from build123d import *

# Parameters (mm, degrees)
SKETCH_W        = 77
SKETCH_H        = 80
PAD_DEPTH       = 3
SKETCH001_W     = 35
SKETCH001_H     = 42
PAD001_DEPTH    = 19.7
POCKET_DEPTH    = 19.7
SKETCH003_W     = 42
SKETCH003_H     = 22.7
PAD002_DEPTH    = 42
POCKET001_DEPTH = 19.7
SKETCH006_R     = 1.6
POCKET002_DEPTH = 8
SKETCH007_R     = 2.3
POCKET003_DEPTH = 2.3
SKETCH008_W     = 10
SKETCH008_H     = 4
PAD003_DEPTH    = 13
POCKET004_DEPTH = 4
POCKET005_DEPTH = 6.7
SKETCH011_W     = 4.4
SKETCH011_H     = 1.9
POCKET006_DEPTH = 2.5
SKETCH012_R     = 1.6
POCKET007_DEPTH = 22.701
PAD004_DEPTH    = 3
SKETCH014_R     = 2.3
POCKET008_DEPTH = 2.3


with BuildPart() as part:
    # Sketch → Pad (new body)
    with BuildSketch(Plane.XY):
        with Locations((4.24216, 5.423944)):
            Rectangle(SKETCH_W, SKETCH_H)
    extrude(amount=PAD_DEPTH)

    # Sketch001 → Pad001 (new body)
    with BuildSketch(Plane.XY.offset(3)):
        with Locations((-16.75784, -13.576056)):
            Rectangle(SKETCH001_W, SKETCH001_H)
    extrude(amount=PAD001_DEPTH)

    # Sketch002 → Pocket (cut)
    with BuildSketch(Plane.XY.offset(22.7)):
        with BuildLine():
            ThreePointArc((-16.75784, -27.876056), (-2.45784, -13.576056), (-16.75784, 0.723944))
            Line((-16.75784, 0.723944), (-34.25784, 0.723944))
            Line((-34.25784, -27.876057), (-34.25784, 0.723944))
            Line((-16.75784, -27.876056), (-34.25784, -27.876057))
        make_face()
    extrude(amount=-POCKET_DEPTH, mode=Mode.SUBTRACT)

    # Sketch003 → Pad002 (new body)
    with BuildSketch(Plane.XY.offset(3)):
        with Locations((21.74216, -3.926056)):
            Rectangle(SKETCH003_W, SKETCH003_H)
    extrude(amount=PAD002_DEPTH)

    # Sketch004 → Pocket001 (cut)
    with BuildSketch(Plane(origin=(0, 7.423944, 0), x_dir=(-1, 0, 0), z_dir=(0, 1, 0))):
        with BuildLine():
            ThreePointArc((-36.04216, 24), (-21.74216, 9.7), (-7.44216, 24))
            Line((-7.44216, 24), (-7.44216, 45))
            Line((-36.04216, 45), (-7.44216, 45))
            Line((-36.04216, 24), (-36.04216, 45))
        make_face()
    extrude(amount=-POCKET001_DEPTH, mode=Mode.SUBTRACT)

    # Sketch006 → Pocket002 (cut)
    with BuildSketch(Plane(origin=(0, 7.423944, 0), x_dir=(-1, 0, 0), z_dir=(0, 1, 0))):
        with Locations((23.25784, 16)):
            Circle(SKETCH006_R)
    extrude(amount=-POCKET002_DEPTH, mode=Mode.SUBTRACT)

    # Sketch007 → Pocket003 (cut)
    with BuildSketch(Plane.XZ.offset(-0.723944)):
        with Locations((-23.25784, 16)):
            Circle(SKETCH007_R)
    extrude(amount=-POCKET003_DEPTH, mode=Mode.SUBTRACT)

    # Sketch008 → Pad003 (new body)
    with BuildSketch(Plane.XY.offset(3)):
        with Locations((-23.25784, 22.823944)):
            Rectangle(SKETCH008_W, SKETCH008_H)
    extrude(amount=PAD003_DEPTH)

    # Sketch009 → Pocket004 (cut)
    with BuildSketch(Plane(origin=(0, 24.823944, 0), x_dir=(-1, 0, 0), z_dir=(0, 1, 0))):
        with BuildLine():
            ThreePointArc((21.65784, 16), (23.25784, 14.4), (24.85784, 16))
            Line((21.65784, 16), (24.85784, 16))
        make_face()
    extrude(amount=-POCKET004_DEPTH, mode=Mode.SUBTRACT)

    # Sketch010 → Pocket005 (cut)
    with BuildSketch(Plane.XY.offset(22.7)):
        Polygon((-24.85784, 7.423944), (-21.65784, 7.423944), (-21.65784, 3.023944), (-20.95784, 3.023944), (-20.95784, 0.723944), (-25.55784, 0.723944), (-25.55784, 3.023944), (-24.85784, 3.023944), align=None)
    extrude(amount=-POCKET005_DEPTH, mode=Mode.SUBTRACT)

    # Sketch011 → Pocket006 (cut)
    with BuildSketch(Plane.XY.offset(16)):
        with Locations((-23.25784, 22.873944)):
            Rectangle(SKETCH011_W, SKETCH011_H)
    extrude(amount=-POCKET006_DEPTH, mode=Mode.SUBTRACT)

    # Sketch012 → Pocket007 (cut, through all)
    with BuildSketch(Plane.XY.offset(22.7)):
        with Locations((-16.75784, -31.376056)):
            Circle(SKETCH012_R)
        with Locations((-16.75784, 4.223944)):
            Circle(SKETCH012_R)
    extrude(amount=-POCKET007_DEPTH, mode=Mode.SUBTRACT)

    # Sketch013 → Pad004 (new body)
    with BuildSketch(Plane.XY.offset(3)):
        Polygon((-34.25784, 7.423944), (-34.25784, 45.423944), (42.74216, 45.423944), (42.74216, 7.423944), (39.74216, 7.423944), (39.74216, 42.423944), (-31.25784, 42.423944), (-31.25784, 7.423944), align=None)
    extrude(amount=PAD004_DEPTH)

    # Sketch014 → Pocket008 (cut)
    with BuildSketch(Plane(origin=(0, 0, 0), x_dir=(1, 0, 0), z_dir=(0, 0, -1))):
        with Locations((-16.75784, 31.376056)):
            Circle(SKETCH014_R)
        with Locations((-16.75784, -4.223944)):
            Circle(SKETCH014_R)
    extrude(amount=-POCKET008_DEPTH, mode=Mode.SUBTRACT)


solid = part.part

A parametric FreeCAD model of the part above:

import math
import FreeCAD as App
import Part
import Sketcher

doc = App.newDocument("Part")
body = doc.addObject("PartDesign::Body", "Body")

sketch1 = body.newObject("Sketcher::SketchObject", "Sketch")
sketch1.AttachmentSupport = (doc.getObject("XY_Plane"), [""])
sketch1.MapMode = "FlatFace"
sketch1.addGeometry(Part.LineSegment(App.Vector(-34, 45, 0), App.Vector(-34, -35, 0)), False)
sketch1.addGeometry(Part.LineSegment(App.Vector(-34, -35, 0), App.Vector(43, -35, 0)), False)
sketch1.addGeometry(Part.LineSegment(App.Vector(43, -35, 0), App.Vector(43, 45, 0)), False)
sketch1.addGeometry(Part.LineSegment(App.Vector(43, 45, 0), App.Vector(-34, 45, 0)), False)
sketch1.addConstraint(Sketcher.Constraint("Coincident", 0, 2, 1, 1))
sketch1.addConstraint(Sketcher.Constraint("Coincident", 1, 2, 2, 1))
sketch1.addConstraint(Sketcher.Constraint("Coincident", 2, 2, 3, 1))
sketch1.addConstraint(Sketcher.Constraint("Coincident", 3, 2, 0, 1))
sketch1.addConstraint(Sketcher.Constraint("Vertical", 0))
sketch1.addConstraint(Sketcher.Constraint("Horizontal", 1))
sketch1.addConstraint(Sketcher.Constraint("Vertical", 2))
sketch1.addConstraint(Sketcher.Constraint("Horizontal", 3))
sketch1.addConstraint(Sketcher.Constraint("DistanceX", 1, 1, 1, 2, 77.0))
sketch1.addConstraint(Sketcher.Constraint("DistanceY", 0, 2, 0, 1, 80.0))
sketch1.addConstraint(Sketcher.Constraint("DistanceX", 0, 2, -1, 1, 34.25784))
sketch1.addConstraint(Sketcher.Constraint("DistanceY", 0, 2, -1, 1, 34.576056))
pad1 = body.newObject("PartDesign::Pad", "Pad")
pad1.Profile = sketch1
pad1.Length = 3

sketch2 = body.newObject("Sketcher::SketchObject", "Sketch001")
sketch2.AttachmentSupport = (doc.getObject("XY_Plane"), [""])
sketch2.MapMode = "FlatFace"
sketch2.AttachmentOffset = App.Placement(App.Vector(0, 0, 3), App.Rotation())
sketch2.addGeometry(Part.LineSegment(App.Vector(-34, 7, 0), App.Vector(-34, -35, 0)), False)
sketch2.addGeometry(Part.LineSegment(App.Vector(-34, -35, 0), App.Vector(1, -35, 0)), False)
sketch2.addGeometry(Part.LineSegment(App.Vector(1, -35, 0), App.Vector(1, 7, 0)), False)
sketch2.addGeometry(Part.LineSegment(App.Vector(1, 7, 0), App.Vector(-34, 7, 0)), False)
sketch2.addConstraint(Sketcher.Constraint("Coincident", 0, 2, 1, 1))
sketch2.addConstraint(Sketcher.Constraint("Coincident", 1, 2, 2, 1))
sketch2.addConstraint(Sketcher.Constraint("Coincident", 2, 2, 3, 1))
sketch2.addConstraint(Sketcher.Constraint("Coincident", 3, 2, 0, 1))
sketch2.addConstraint(Sketcher.Constraint("Vertical", 0))
sketch2.addConstraint(Sketcher.Constraint("Horizontal", 1))
sketch2.addConstraint(Sketcher.Constraint("Vertical", 2))
sketch2.addConstraint(Sketcher.Constraint("Horizontal", 3))
sketch2.addConstraint(Sketcher.Constraint("DistanceX", 1, 1, 1, 2, 35.0))
sketch2.addConstraint(Sketcher.Constraint("DistanceY", 0, 2, 0, 1, 42.0))
sketch2.addConstraint(Sketcher.Constraint("DistanceX", 0, 2, -1, 1, 34.25784))
sketch2.addConstraint(Sketcher.Constraint("DistanceY", 0, 2, -1, 1, 34.576056))
pad2 = body.newObject("PartDesign::Pad", "Pad001")
pad2.Profile = sketch2
pad2.Length = 19.7

sketch3 = body.newObject("Sketcher::SketchObject", "Sketch002")
sketch3.AttachmentSupport = (doc.getObject("XY_Plane"), [""])
sketch3.MapMode = "FlatFace"
sketch3.AttachmentOffset = App.Placement(App.Vector(0, 0, 22.7), App.Rotation())
sketch3.addGeometry(Part.ArcOfCircle(Part.Circle(App.Vector(-17, -14, 0), App.Vector(0, 0, 1), 14), math.radians(-90), math.radians(90)), False)
sketch3.addGeometry(Part.LineSegment(App.Vector(-17, 1, 0), App.Vector(-34, 1, 0)), False)
sketch3.addGeometry(Part.LineSegment(App.Vector(-34, 1, 0), App.Vector(-34, -28, 0)), False)
sketch3.addGeometry(Part.LineSegment(App.Vector(-34, -28, 0), App.Vector(-17, -28, 0)), False)
sketch3.addConstraint(Sketcher.Constraint("Tangent", 0, 2, 1, 1))
sketch3.addConstraint(Sketcher.Constraint("Coincident", 1, 2, 2, 1))
sketch3.addConstraint(Sketcher.Constraint("Coincident", 2, 2, 3, 1))
sketch3.addConstraint(Sketcher.Constraint("Tangent", 3, 2, 0, 1))
sketch3.addConstraint(Sketcher.Constraint("Horizontal", 1))
sketch3.addConstraint(Sketcher.Constraint("Vertical", 2))
sketch3.addConstraint(Sketcher.Constraint("Horizontal", 3))
sketch3.addConstraint(Sketcher.Constraint("Radius", 0, 14.3))
sketch3.addConstraint(Sketcher.Constraint("DistanceX", 1, 2, 1, 1, 17.5))
sketch3.addConstraint(Sketcher.Constraint("DistanceX", 0, 3, -1, 1, 16.75784))
sketch3.addConstraint(Sketcher.Constraint("DistanceY", 0, 3, -1, 1, 13.576056))
pocket1 = body.newObject("PartDesign::Pocket", "Pocket")
pocket1.Profile = sketch3
pocket1.Length = 19.7

sketch4 = body.newObject("Sketcher::SketchObject", "Sketch003")
sketch4.AttachmentSupport = (doc.getObject("XY_Plane"), [""])
sketch4.MapMode = "FlatFace"
sketch4.AttachmentOffset = App.Placement(App.Vector(0, 0, 3), App.Rotation())
sketch4.addGeometry(Part.LineSegment(App.Vector(1, 7, 0), App.Vector(1, -15, 0)), False)
sketch4.addGeometry(Part.LineSegment(App.Vector(1, -15, 0), App.Vector(43, -15, 0)), False)
sketch4.addGeometry(Part.LineSegment(App.Vector(43, -15, 0), App.Vector(43, 7, 0)), False)
sketch4.addGeometry(Part.LineSegment(App.Vector(43, 7, 0), App.Vector(1, 7, 0)), False)
sketch4.addConstraint(Sketcher.Constraint("Coincident", 0, 2, 1, 1))
sketch4.addConstraint(Sketcher.Constraint("Coincident", 1, 2, 2, 1))
sketch4.addConstraint(Sketcher.Constraint("Coincident", 2, 2, 3, 1))
sketch4.addConstraint(Sketcher.Constraint("Coincident", 3, 2, 0, 1))
sketch4.addConstraint(Sketcher.Constraint("Vertical", 0))
sketch4.addConstraint(Sketcher.Constraint("Horizontal", 1))
sketch4.addConstraint(Sketcher.Constraint("Vertical", 2))
sketch4.addConstraint(Sketcher.Constraint("Horizontal", 3))
sketch4.addConstraint(Sketcher.Constraint("DistanceX", 1, 1, 1, 2, 42.0))
sketch4.addConstraint(Sketcher.Constraint("DistanceY", 0, 2, 0, 1, 22.7))
sketch4.addConstraint(Sketcher.Constraint("DistanceX", -1, 1, 0, 2, 0.74216))
sketch4.addConstraint(Sketcher.Constraint("DistanceY", 0, 2, -1, 1, 15.276056))
pad3 = body.newObject("PartDesign::Pad", "Pad002")
pad3.Profile = sketch4
pad3.Length = 42

sketch5 = body.newObject("Sketcher::SketchObject", "Sketch004")
sketch5.AttachmentSupport = (doc.getObject("XZ_Plane"), [""])
sketch5.MapMode = "FlatFace"
sketch5.AttachmentOffset = App.Placement(App.Vector(0, 0, -7.423944), App.Rotation())
sketch5.addGeometry(Part.ArcOfCircle(Part.Circle(App.Vector(22, 24, 0), App.Vector(0, 0, 1), 14), math.radians(180), math.radians(360)), False)
sketch5.addGeometry(Part.LineSegment(App.Vector(7, 24, 0), App.Vector(7, 45, 0)), False)
sketch5.addGeometry(Part.LineSegment(App.Vector(7, 45, 0), App.Vector(36, 45, 0)), False)
sketch5.addGeometry(Part.LineSegment(App.Vector(36, 45, 0), App.Vector(36, 24, 0)), False)
sketch5.addConstraint(Sketcher.Constraint("Tangent", 0, 1, 1, 1))
sketch5.addConstraint(Sketcher.Constraint("Coincident", 1, 2, 2, 1))
sketch5.addConstraint(Sketcher.Constraint("Coincident", 2, 2, 3, 1))
sketch5.addConstraint(Sketcher.Constraint("Tangent", 3, 2, 0, 2))
sketch5.addConstraint(Sketcher.Constraint("Vertical", 1))
sketch5.addConstraint(Sketcher.Constraint("Horizontal", 2))
sketch5.addConstraint(Sketcher.Constraint("Vertical", 3))
sketch5.addConstraint(Sketcher.Constraint("Radius", 0, 14.3))
sketch5.addConstraint(Sketcher.Constraint("DistanceY", 1, 1, 1, 2, 21.0))
sketch5.addConstraint(Sketcher.Constraint("DistanceY", -1, 1, 0, 3, 24.0))
sketch5.addConstraint(Sketcher.Constraint("DistanceX", -1, 1, 0, 3, 21.74216))
pocket2 = body.newObject("PartDesign::Pocket", "Pocket001")
pocket2.Profile = sketch5
pocket2.Length = 19.7
pocket2.Reversed = True

sketch6 = body.newObject("Sketcher::SketchObject", "Sketch005")
sketch6.AttachmentSupport = (doc.getObject("XZ_Plane"), [""])
sketch6.MapMode = "FlatFace"
sketch6.AttachmentOffset = App.Placement(App.Vector(0, 0, -7.423944), App.Rotation())
sketch6.addGeometry(Part.Circle(App.Vector(-23.3, 16, 0), App.Vector(0, 0, 1), 1.6), False)
sketch6.addConstraint(Sketcher.Constraint("Diameter", 0, 3.2))
sketch6.addConstraint(Sketcher.Constraint("DistanceY", -1, 1, 0, 3, 16.0))
sketch6.addConstraint(Sketcher.Constraint("DistanceX", 0, 3, -1, 1, 23.25784))
pocket3 = body.newObject("PartDesign::Pocket", "Pocket002")
pocket3.Profile = sketch6
pocket3.Length = 8
pocket3.Reversed = True

sketch7 = body.newObject("Sketcher::SketchObject", "Sketch006")
sketch7.AttachmentSupport = (doc.getObject("XZ_Plane"), [""])
sketch7.MapMode = "FlatFace"
sketch7.AttachmentOffset = App.Placement(App.Vector(0, 0, -0.723944), App.Rotation())
sketch7.addGeometry(Part.Circle(App.Vector(-23.3, 16, 0), App.Vector(0, 0, 1), 2.3), False)
sketch7.addConstraint(Sketcher.Constraint("Diameter", 0, 4.6))
sketch7.addConstraint(Sketcher.Constraint("DistanceY", -1, 1, 0, 3, 16.0))
sketch7.addConstraint(Sketcher.Constraint("DistanceX", 0, 3, -1, 1, 23.25784))
pocket4 = body.newObject("PartDesign::Pocket", "Pocket003")
pocket4.Profile = sketch7
pocket4.Length = 2.3

sketch8 = body.newObject("Sketcher::SketchObject", "Sketch007")
sketch8.AttachmentSupport = (doc.getObject("XY_Plane"), [""])
sketch8.MapMode = "FlatFace"
sketch8.AttachmentOffset = App.Placement(App.Vector(0, 0, 3), App.Rotation())
sketch8.addGeometry(Part.LineSegment(App.Vector(-28.3, 24.8, 0), App.Vector(-28.3, 20.8, 0)), False)
sketch8.addGeometry(Part.LineSegment(App.Vector(-28.3, 20.8, 0), App.Vector(-18.3, 20.8, 0)), False)
sketch8.addGeometry(Part.LineSegment(App.Vector(-18.3, 20.8, 0), App.Vector(-18.3, 24.8, 0)), False)
sketch8.addGeometry(Part.LineSegment(App.Vector(-18.3, 24.8, 0), App.Vector(-28.3, 24.8, 0)), False)
sketch8.addConstraint(Sketcher.Constraint("Coincident", 0, 2, 1, 1))
sketch8.addConstraint(Sketcher.Constraint("Coincident", 1, 2, 2, 1))
sketch8.addConstraint(Sketcher.Constraint("Coincident", 2, 2, 3, 1))
sketch8.addConstraint(Sketcher.Constraint("Coincident", 3, 2, 0, 1))
sketch8.addConstraint(Sketcher.Constraint("Vertical", 0))
sketch8.addConstraint(Sketcher.Constraint("Horizontal", 1))
sketch8.addConstraint(Sketcher.Constraint("Vertical", 2))
sketch8.addConstraint(Sketcher.Constraint("Horizontal", 3))
sketch8.addConstraint(Sketcher.Constraint("DistanceX", 1, 1, 1, 2, 10.0))
sketch8.addConstraint(Sketcher.Constraint("DistanceY", 0, 2, 0, 1, 4.0))
sketch8.addConstraint(Sketcher.Constraint("DistanceX", 0, 2, -1, 1, 28.25784))
sketch8.addConstraint(Sketcher.Constraint("DistanceY", -1, 1, 0, 2, 20.823944))
pad4 = body.newObject("PartDesign::Pad", "Pad003")
pad4.Profile = sketch8
pad4.Length = 13

sketch9 = body.newObject("Sketcher::SketchObject", "Sketch008")
sketch9.AttachmentSupport = (doc.getObject("XZ_Plane"), [""])
sketch9.MapMode = "FlatFace"
sketch9.AttachmentOffset = App.Placement(App.Vector(0, 0, -24.823944), App.Rotation())
sketch9.addGeometry(Part.ArcOfCircle(Part.Circle(App.Vector(-23.3, 16, 0), App.Vector(0, 0, 1), 1.6), math.radians(180), math.radians(360)), False)
sketch9.addGeometry(Part.LineSegment(App.Vector(-24.9, 16, 0), App.Vector(-21.7, 16, 0)), False)
sketch9.addConstraint(Sketcher.Constraint("Coincident", 0, 1, 1, 1))
sketch9.addConstraint(Sketcher.Constraint("Coincident", 1, 2, 0, 2))
sketch9.addConstraint(Sketcher.Constraint("Horizontal", 1))
sketch9.addConstraint(Sketcher.Constraint("Radius", 0, 1.6))
sketch9.addConstraint(Sketcher.Constraint("DistanceY", -1, 1, 0, 3, 16.0))
sketch9.addConstraint(Sketcher.Constraint("DistanceY", -1, 1, 0, 1, 16.0))
sketch9.addConstraint(Sketcher.Constraint("DistanceX", 0, 3, -1, 1, 23.25784))
pocket5 = body.newObject("PartDesign::Pocket", "Pocket004")
pocket5.Profile = sketch9
pocket5.Length = 4
pocket5.Reversed = True

sketch10 = body.newObject("Sketcher::SketchObject", "Sketch009")
sketch10.AttachmentSupport = (doc.getObject("XY_Plane"), [""])
sketch10.MapMode = "FlatFace"
sketch10.AttachmentOffset = App.Placement(App.Vector(0, 0, 22.7), App.Rotation())
sketch10.addGeometry(Part.LineSegment(App.Vector(-21.7, 7.4, 0), App.Vector(-24.9, 7.4, 0)), False)
sketch10.addGeometry(Part.LineSegment(App.Vector(-24.9, 7.4, 0), App.Vector(-24.9, 3, 0)), False)
sketch10.addGeometry(Part.LineSegment(App.Vector(-24.9, 3, 0), App.Vector(-25.6, 3, 0)), False)
sketch10.addGeometry(Part.LineSegment(App.Vector(-25.6, 3, 0), App.Vector(-25.6, 0.7, 0)), False)
sketch10.addGeometry(Part.LineSegment(App.Vector(-25.6, 0.7, 0), App.Vector(-21, 0.7, 0)), False)
sketch10.addGeometry(Part.LineSegment(App.Vector(-21, 0.7, 0), App.Vector(-21, 3, 0)), False)
sketch10.addGeometry(Part.LineSegment(App.Vector(-21, 3, 0), App.Vector(-21.7, 3, 0)), False)
sketch10.addGeometry(Part.LineSegment(App.Vector(-21.7, 3, 0), App.Vector(-21.7, 7.4, 0)), False)
sketch10.addConstraint(Sketcher.Constraint("Coincident", 0, 2, 1, 1))
sketch10.addConstraint(Sketcher.Constraint("Coincident", 1, 2, 2, 1))
sketch10.addConstraint(Sketcher.Constraint("Coincident", 2, 2, 3, 1))
sketch10.addConstraint(Sketcher.Constraint("Coincident", 3, 2, 4, 1))
sketch10.addConstraint(Sketcher.Constraint("Coincident", 4, 2, 5, 1))
sketch10.addConstraint(Sketcher.Constraint("Coincident", 5, 2, 6, 1))
sketch10.addConstraint(Sketcher.Constraint("Coincident", 6, 2, 7, 1))
sketch10.addConstraint(Sketcher.Constraint("Coincident", 7, 2, 0, 1))
sketch10.addConstraint(Sketcher.Constraint("Horizontal", 0))
sketch10.addConstraint(Sketcher.Constraint("Vertical", 1))
sketch10.addConstraint(Sketcher.Constraint("Horizontal", 2))
sketch10.addConstraint(Sketcher.Constraint("Vertical", 3))
sketch10.addConstraint(Sketcher.Constraint("Horizontal", 4))
sketch10.addConstraint(Sketcher.Constraint("Vertical", 5))
sketch10.addConstraint(Sketcher.Constraint("Horizontal", 6))
sketch10.addConstraint(Sketcher.Constraint("Vertical", 7))
sketch10.addConstraint(Sketcher.Constraint("Horizontal", 2, 2, 5, 2))
sketch10.addConstraint(Sketcher.Constraint("Equal", 2, 6))
sketch10.addConstraint(Sketcher.Constraint("DistanceX", 0, 2, 0, 1, 3.2))
sketch10.addConstraint(Sketcher.Constraint("DistanceX", 2, 2, 2, 1, 0.7))
sketch10.addConstraint(Sketcher.Constraint("DistanceY", 1, 2, 1, 1, 4.4))
sketch10.addConstraint(Sketcher.Constraint("DistanceY", 3, 2, 3, 1, 2.3))
sketch10.addConstraint(Sketcher.Constraint("DistanceX", 0, 2, -1, 1, 24.85784))
sketch10.addConstraint(Sketcher.Constraint("DistanceY", -1, 1, 0, 2, 7.423944))
pocket6 = body.newObject("PartDesign::Pocket", "Pocket005")
pocket6.Profile = sketch10
pocket6.Length = 6.7

sketch11 = body.newObject("Sketcher::SketchObject", "Sketch010")
sketch11.AttachmentSupport = (doc.getObject("XY_Plane"), [""])
sketch11.MapMode = "FlatFace"
sketch11.AttachmentOffset = App.Placement(App.Vector(0, 0, 16), App.Rotation())
sketch11.addGeometry(Part.LineSegment(App.Vector(-25.5, 23.8, 0), App.Vector(-25.5, 21.9, 0)), False)
sketch11.addGeometry(Part.LineSegment(App.Vector(-25.5, 21.9, 0), App.Vector(-21.1, 21.9, 0)), False)
sketch11.addGeometry(Part.LineSegment(App.Vector(-21.1, 21.9, 0), App.Vector(-21.1, 23.8, 0)), False)
sketch11.addGeometry(Part.LineSegment(App.Vector(-21.1, 23.8, 0), App.Vector(-25.5, 23.8, 0)), False)
sketch11.addConstraint(Sketcher.Constraint("Coincident", 0, 2, 1, 1))
sketch11.addConstraint(Sketcher.Constraint("Coincident", 1, 2, 2, 1))
sketch11.addConstraint(Sketcher.Constraint("Coincident", 2, 2, 3, 1))
sketch11.addConstraint(Sketcher.Constraint("Coincident", 3, 2, 0, 1))
sketch11.addConstraint(Sketcher.Constraint("Vertical", 0))
sketch11.addConstraint(Sketcher.Constraint("Horizontal", 1))
sketch11.addConstraint(Sketcher.Constraint("Vertical", 2))
sketch11.addConstraint(Sketcher.Constraint("Horizontal", 3))
sketch11.addConstraint(Sketcher.Constraint("DistanceX", 1, 1, 1, 2, 4.4))
sketch11.addConstraint(Sketcher.Constraint("DistanceY", 0, 2, 0, 1, 1.9))
sketch11.addConstraint(Sketcher.Constraint("DistanceX", 0, 2, -1, 1, 25.45784))
sketch11.addConstraint(Sketcher.Constraint("DistanceY", -1, 1, 0, 2, 21.923944))
pocket7 = body.newObject("PartDesign::Pocket", "Pocket006")
pocket7.Profile = sketch11
pocket7.Length = 2.5

sketch12 = body.newObject("Sketcher::SketchObject", "Sketch011")
sketch12.AttachmentSupport = (doc.getObject("XY_Plane"), [""])
sketch12.MapMode = "FlatFace"
sketch12.AttachmentOffset = App.Placement(App.Vector(0, 0, 22.7), App.Rotation())
sketch12.addGeometry(Part.Circle(App.Vector(-16.8, -31.4, 0), App.Vector(0, 0, 1), 1.6), False)
sketch12.addGeometry(Part.Circle(App.Vector(-16.8, 4.2, 0), App.Vector(0, 0, 1), 1.6), False)
sketch12.addConstraint(Sketcher.Constraint("Equal", 0, 1))
sketch12.addConstraint(Sketcher.Constraint("Vertical", 0, 3, 1, 3))
sketch12.addConstraint(Sketcher.Constraint("Diameter", 0, 3.2))
sketch12.addConstraint(Sketcher.Constraint("DistanceY", 0, 3, 1, 3, 35.6))
sketch12.addConstraint(Sketcher.Constraint("DistanceX", 0, 3, -1, 1, 16.75784))
sketch12.addConstraint(Sketcher.Constraint("DistanceY", 0, 3, -1, 1, 31.376056))
pocket8 = body.newObject("PartDesign::Pocket", "Pocket007")
pocket8.Profile = sketch12
pocket8.Type = "ThroughAll"

sketch13 = body.newObject("Sketcher::SketchObject", "Sketch012")
sketch13.AttachmentSupport = (doc.getObject("XY_Plane"), [""])
sketch13.MapMode = "FlatFace"
sketch13.AttachmentOffset = App.Placement(App.Vector(0, 0, 3), App.Rotation())
sketch13.addGeometry(Part.LineSegment(App.Vector(-34.3, 45.4, 0), App.Vector(-34.3, 7.4, 0)), False)
sketch13.addGeometry(Part.LineSegment(App.Vector(-34.3, 7.4, 0), App.Vector(-31.3, 7.4, 0)), False)
sketch13.addGeometry(Part.LineSegment(App.Vector(-31.3, 7.4, 0), App.Vector(-31.3, 42.4, 0)), False)
sketch13.addGeometry(Part.LineSegment(App.Vector(-31.3, 42.4, 0), App.Vector(39.7, 42.4, 0)), False)
sketch13.addGeometry(Part.LineSegment(App.Vector(39.7, 42.4, 0), App.Vector(39.7, 7.4, 0)), False)
sketch13.addGeometry(Part.LineSegment(App.Vector(39.7, 7.4, 0), App.Vector(42.7, 7.4, 0)), False)
sketch13.addGeometry(Part.LineSegment(App.Vector(42.7, 7.4, 0), App.Vector(42.7, 45.4, 0)), False)
sketch13.addGeometry(Part.LineSegment(App.Vector(42.7, 45.4, 0), App.Vector(-34.3, 45.4, 0)), False)
sketch13.addConstraint(Sketcher.Constraint("Coincident", 0, 2, 1, 1))
sketch13.addConstraint(Sketcher.Constraint("Coincident", 1, 2, 2, 1))
sketch13.addConstraint(Sketcher.Constraint("Coincident", 2, 2, 3, 1))
sketch13.addConstraint(Sketcher.Constraint("Coincident", 3, 2, 4, 1))
sketch13.addConstraint(Sketcher.Constraint("Coincident", 4, 2, 5, 1))
sketch13.addConstraint(Sketcher.Constraint("Coincident", 5, 2, 6, 1))
sketch13.addConstraint(Sketcher.Constraint("Coincident", 6, 2, 7, 1))
sketch13.addConstraint(Sketcher.Constraint("Coincident", 7, 2, 0, 1))
sketch13.addConstraint(Sketcher.Constraint("Vertical", 0))
sketch13.addConstraint(Sketcher.Constraint("Horizontal", 1))
sketch13.addConstraint(Sketcher.Constraint("Vertical", 2))
sketch13.addConstraint(Sketcher.Constraint("Horizontal", 3))
sketch13.addConstraint(Sketcher.Constraint("Vertical", 4))
sketch13.addConstraint(Sketcher.Constraint("Horizontal", 5))
sketch13.addConstraint(Sketcher.Constraint("Vertical", 6))
sketch13.addConstraint(Sketcher.Constraint("Horizontal", 7))
sketch13.addConstraint(Sketcher.Constraint("Horizontal", 1, 2, 4, 2))
sketch13.addConstraint(Sketcher.Constraint("Equal", 1, 5))
sketch13.addConstraint(Sketcher.Constraint("DistanceX", 1, 1, 1, 2, 3.0))
sketch13.addConstraint(Sketcher.Constraint("DistanceX", 3, 1, 3, 2, 71.0))
sketch13.addConstraint(Sketcher.Constraint("DistanceY", 0, 2, 0, 1, 38.0))
sketch13.addConstraint(Sketcher.Constraint("DistanceY", 2, 1, 2, 2, 35.0))
sketch13.addConstraint(Sketcher.Constraint("DistanceX", 0, 2, -1, 1, 34.25784))
sketch13.addConstraint(Sketcher.Constraint("DistanceY", -1, 1, 0, 2, 7.423944))
pad5 = body.newObject("PartDesign::Pad", "Pad004")
pad5.Profile = sketch13
pad5.Length = 3

sketch14 = body.newObject("Sketcher::SketchObject", "Sketch013")
sketch14.AttachmentSupport = (doc.getObject("XY_Plane"), [""])
sketch14.MapMode = "FlatFace"
sketch14.addGeometry(Part.Circle(App.Vector(-16.8, -31.4, 0), App.Vector(0, 0, 1), 2.3), False)
sketch14.addGeometry(Part.Circle(App.Vector(-16.8, 4.2, 0), App.Vector(0, 0, 1), 2.3), False)
sketch14.addConstraint(Sketcher.Constraint("Equal", 0, 1))
sketch14.addConstraint(Sketcher.Constraint("Vertical", 0, 3, 1, 3))
sketch14.addConstraint(Sketcher.Constraint("Diameter", 0, 4.6))
sketch14.addConstraint(Sketcher.Constraint("DistanceY", 0, 3, 1, 3, 35.6))
sketch14.addConstraint(Sketcher.Constraint("DistanceX", 0, 3, -1, 1, 16.75784))
sketch14.addConstraint(Sketcher.Constraint("DistanceY", 0, 3, -1, 1, 31.376056))
pocket9 = body.newObject("PartDesign::Pocket", "Pocket008")
pocket9.Profile = sketch14
pocket9.Length = 2.3
pocket9.Reversed = True

doc.recompute()
